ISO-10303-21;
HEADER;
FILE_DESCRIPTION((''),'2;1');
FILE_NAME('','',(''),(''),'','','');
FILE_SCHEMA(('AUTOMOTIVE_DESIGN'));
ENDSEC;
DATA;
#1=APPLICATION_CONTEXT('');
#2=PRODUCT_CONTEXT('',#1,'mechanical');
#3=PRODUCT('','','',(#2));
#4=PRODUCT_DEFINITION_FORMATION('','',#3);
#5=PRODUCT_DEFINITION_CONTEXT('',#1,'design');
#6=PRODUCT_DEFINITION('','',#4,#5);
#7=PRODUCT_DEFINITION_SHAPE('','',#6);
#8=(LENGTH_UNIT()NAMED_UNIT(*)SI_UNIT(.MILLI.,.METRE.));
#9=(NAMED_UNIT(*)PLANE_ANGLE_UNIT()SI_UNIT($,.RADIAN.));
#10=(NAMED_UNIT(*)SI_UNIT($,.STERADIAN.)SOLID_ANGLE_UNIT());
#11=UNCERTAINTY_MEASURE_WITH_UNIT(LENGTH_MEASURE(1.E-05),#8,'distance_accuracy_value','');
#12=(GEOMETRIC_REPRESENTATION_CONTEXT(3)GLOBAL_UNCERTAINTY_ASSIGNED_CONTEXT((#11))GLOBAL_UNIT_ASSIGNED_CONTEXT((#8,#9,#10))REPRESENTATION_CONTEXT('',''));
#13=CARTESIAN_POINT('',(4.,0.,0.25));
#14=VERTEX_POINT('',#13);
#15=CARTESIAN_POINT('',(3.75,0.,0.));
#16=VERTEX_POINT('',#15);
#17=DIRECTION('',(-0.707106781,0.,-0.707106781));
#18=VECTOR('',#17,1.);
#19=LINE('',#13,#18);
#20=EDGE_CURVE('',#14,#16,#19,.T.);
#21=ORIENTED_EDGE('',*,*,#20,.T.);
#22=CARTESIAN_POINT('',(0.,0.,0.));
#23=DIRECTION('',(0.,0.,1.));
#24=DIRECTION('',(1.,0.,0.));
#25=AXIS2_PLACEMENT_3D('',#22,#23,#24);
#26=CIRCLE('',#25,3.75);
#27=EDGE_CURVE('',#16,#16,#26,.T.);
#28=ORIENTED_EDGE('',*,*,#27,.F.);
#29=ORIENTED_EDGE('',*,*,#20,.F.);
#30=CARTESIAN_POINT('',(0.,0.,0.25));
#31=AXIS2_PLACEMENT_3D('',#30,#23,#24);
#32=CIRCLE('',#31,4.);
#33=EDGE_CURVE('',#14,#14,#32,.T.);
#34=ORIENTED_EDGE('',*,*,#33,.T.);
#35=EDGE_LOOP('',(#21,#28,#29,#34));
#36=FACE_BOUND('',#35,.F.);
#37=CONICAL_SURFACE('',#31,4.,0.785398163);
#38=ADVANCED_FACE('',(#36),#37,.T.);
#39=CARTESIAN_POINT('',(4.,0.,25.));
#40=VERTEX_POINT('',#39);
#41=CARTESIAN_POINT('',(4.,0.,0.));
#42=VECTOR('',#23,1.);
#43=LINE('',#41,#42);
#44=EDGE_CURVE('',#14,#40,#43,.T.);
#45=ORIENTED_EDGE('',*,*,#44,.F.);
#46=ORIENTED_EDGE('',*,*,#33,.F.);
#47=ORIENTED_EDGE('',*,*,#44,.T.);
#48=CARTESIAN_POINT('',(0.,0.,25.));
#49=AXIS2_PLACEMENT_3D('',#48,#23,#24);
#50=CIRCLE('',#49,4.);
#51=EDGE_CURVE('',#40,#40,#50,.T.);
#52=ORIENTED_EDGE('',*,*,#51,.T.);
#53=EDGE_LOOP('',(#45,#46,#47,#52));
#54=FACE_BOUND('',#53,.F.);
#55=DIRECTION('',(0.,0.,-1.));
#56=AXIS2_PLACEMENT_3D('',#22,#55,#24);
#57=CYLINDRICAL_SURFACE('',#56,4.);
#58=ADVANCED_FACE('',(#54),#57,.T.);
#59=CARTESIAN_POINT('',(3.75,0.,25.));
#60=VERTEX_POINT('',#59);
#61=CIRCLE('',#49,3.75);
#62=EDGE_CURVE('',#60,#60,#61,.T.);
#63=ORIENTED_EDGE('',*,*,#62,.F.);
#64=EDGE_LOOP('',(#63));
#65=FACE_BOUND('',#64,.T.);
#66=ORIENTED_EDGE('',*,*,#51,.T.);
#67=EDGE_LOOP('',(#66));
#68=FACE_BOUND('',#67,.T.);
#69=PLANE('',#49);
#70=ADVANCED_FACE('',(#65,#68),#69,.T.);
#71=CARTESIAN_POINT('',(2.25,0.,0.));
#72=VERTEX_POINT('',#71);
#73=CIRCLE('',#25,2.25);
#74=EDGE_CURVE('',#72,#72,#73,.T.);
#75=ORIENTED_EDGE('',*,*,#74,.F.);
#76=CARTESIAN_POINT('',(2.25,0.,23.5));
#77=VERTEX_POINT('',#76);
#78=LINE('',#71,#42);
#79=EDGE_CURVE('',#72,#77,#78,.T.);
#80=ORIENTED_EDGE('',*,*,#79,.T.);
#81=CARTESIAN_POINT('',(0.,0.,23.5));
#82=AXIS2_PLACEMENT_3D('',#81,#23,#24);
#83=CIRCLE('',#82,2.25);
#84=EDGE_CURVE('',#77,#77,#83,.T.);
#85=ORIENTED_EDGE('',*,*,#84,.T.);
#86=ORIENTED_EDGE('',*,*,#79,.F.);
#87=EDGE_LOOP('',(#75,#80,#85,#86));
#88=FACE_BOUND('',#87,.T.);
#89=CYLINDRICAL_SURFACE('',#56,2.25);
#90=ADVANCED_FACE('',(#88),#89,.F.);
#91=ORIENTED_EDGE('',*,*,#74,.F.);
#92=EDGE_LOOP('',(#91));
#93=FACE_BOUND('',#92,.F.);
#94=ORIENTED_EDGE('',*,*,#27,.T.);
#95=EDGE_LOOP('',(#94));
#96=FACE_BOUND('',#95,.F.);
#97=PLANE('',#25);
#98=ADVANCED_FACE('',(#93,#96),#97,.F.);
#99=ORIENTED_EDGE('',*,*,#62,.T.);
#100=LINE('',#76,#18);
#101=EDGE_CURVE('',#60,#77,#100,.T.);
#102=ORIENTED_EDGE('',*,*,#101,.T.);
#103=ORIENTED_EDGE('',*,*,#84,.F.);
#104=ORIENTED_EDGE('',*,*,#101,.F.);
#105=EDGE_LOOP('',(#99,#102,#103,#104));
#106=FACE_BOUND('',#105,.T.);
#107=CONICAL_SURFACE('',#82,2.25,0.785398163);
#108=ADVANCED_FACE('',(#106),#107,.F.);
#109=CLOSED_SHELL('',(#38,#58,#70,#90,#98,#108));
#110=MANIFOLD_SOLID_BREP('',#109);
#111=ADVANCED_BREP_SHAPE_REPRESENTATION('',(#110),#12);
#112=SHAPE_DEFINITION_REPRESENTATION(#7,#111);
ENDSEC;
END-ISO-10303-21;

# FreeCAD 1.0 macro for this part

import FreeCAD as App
import Part
import Sketcher


def edges_at(feature, points):
    """Names of the edges that pass closest to the given points."""
    edges = feature.Shape.Edges
    near = lambda p: min(range(len(edges)), key=lambda i: edges[i].distToShape(Part.Vertex(*p))[0])
    return sorted({f"Edge{near(p) + 1}" for p in points})

doc = App.newDocument("Part")
body = doc.addObject("PartDesign::Body", "Body")

# Sketch on XY plane
sketch1 = doc.addObject("Sketcher::SketchObject", "Sketch")
body.addObject(sketch1)
sketch1.AttachmentSupport = (doc.XY_Plane, [""])
sketch1.MapMode = "FlatFace"
sketch1.addGeometry([
    Part.Circle(App.Vector(0, 0, 0), App.Vector(0, 0, 1), 4),
    Part.Circle(App.Vector(0, 0, 0), App.Vector(0, 0, 1), 2.2),
], False)
sketch1.addConstraint([
    Sketcher.Constraint("Coincident", 0, 3, -1, 1),
    Sketcher.Constraint("Coincident", 1, 3, -1, 1),
    Sketcher.Constraint("Diameter", 0, 8.0),
    Sketcher.Constraint("Diameter", 1, 4.5),
])
pad1 = doc.addObject("PartDesign::Pad", "Pad")
body.addObject(pad1)
pad1.Profile = sketch1
pad1.Length = 25
doc.recompute()

chamfer = doc.addObject("PartDesign::Chamfer", "Chamfer")
body.addObject(chamfer)
chamfer.Base = (pad1, edges_at(pad1, [(-4, 0, 0)]))
chamfer.Size = 0.25
doc.recompute()

chamfer2 = doc.addObject("PartDesign::Chamfer", "Chamfer001")
body.addObject(chamfer2)
chamfer2.Base = (chamfer, edges_at(chamfer, [(-2.25, 0, 25)]))
chamfer2.Size = 1.5

doc.recompute()
